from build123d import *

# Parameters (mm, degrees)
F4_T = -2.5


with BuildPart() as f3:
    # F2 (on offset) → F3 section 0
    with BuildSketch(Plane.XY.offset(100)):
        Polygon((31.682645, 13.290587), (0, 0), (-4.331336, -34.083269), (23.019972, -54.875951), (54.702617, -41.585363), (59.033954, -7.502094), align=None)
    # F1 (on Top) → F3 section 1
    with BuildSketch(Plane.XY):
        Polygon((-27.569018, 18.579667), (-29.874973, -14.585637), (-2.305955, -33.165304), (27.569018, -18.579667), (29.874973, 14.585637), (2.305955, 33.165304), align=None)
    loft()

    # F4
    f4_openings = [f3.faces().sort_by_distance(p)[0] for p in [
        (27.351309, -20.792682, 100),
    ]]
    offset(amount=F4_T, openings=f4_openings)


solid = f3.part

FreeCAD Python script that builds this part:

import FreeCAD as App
import Part
import Sketcher
Q = App.Units.Quantity


def faces_at(feature, points):
    """Names of the faces that lie closest to the given points."""
    faces = feature.Shape.Faces
    near = lambda p: min(range(len(faces)), key=lambda i: faces[i].distToShape(Part.Vertex(*p))[0])
    return sorted({f"Face{near(p) + 1}" for p in points})

doc = App.newDocument("Part")
body = doc.addObject("PartDesign::Body", "Body")

# Sketch on XY plane
sketch1 = body.newObject("Sketcher::SketchObject", "Sketch")
sketch1.AttachmentSupport = (doc.getObject("XY_Plane"), [""])
sketch1.MapMode = "FlatFace"
sketch1.AttachmentOffset = App.Placement(App.Vector(0, 0, 100), App.Rotation())
sketch1.addGeometry(Part.LineSegment(App.Vector(32, 13, 0), App.Vector(0, 0, 0)), False)
sketch1.addGeometry(Part.LineSegment(App.Vector(0, 0, 0), App.Vector(-4, -34, 0)), False)
sketch1.addGeometry(Part.LineSegment(App.Vector(-4, -34, 0), App.Vector(23, -55, 0)), False)
sketch1.addGeometry(Part.LineSegment(App.Vector(23, -55, 0), App.Vector(55, -42, 0)), False)
sketch1.addGeometry(Part.LineSegment(App.Vector(55, -42, 0), App.Vector(59, -8, 0)), False)
sketch1.addGeometry(Part.LineSegment(App.Vector(59, -8, 0), App.Vector(32, 13, 0)), False)
sketch1.addConstraint(Sketcher.Constraint("Coincident", 0, 2, 1, 1))
sketch1.addConstraint(Sketcher.Constraint("Coincident", 1, 2, 2, 1))
sketch1.addConstraint(Sketcher.Constraint("Coincident", 2, 2, 3, 1))
sketch1.addConstraint(Sketcher.Constraint("Coincident", 3, 2, 4, 1))
sketch1.addConstraint(Sketcher.Constraint("Coincident", 4, 2, 5, 1))
sketch1.addConstraint(Sketcher.Constraint("Coincident", 5, 2, 0, 1))
sketch1.addConstraint(Sketcher.Constraint("Coincident", 0, 2, -1, 1))
sketch1.addConstraint(Sketcher.Constraint("Parallel", 0, 3))
sketch1.addConstraint(Sketcher.Constraint("Parallel", 1, 4))
sketch1.addConstraint(Sketcher.Constraint("Parallel", 2, 5))
sketch1.addConstraint(Sketcher.Constraint("Equal", 0, 1))
sketch1.addConstraint(Sketcher.Constraint("Equal", 1, 2))
sketch1.addConstraint(Sketcher.Constraint("Equal", 2, 3))
sketch1.addConstraint(Sketcher.Constraint("Distance", 0, Q("34.357382 mm")))
sketch1.addConstraint(Sketcher.Constraint("DistanceY", 1, 2, -1, 1, Q("34.083269 mm")))
sketch1.addConstraint(Sketcher.Constraint("DistanceX", -1, 1, 2, 2, Q("23.019972 mm")))
sketch1.addConstraint(Sketcher.Constraint("DistanceX", 1, 2, 4, 2, Q("63.36529 mm")))

# Sketch on XY plane
sketch2 = body.newObject("Sketcher::SketchObject", "Sketch001")
sketch2.AttachmentSupport = (doc.getObject("XY_Plane"), [""])
sketch2.MapMode = "FlatFace"
sketch2.addGeometry(Part.LineSegment(App.Vector(-28, 19, 0), App.Vector(-30, -15, 0)), False)
sketch2.addGeometry(Part.LineSegment(App.Vector(-30, -15, 0), App.Vector(-2, -33, 0)), False)
sketch2.addGeometry(Part.LineSegment(App.Vector(-2, -33, 0), App.Vector(28, -19, 0)), False)
sketch2.addGeometry(Part.LineSegment(App.Vector(28, -19, 0), App.Vector(30, 15, 0)), False)
sketch2.addGeometry(Part.LineSegment(App.Vector(30, 15, 0), App.Vector(2, 33, 0)), False)
sketch2.addGeometry(Part.LineSegment(App.Vector(2, 33, 0), App.Vector(-28, 19, 0)), False)
sketch2.addConstraint(Sketcher.Constraint("Coincident", 0, 2, 1, 1))
sketch2.addConstraint(Sketcher.Constraint("Coincident", 1, 2, 2, 1))
sketch2.addConstraint(Sketcher.Constraint("Coincident", 2, 2, 3, 1))
sketch2.addConstraint(Sketcher.Constraint("Coincident", 3, 2, 4, 1))
sketch2.addConstraint(Sketcher.Constraint("Coincident", 4, 2, 5, 1))
sketch2.addConstraint(Sketcher.Constraint("Coincident", 5, 2, 0, 1))
sketch2.addConstraint(Sketcher.Constraint("Symmetric", 0, 2, 3, 2, -1, 1))
sketch2.addConstraint(Sketcher.Constraint("Symmetric", 1, 2, 4, 2, -1, 1))
sketch2.addConstraint(Sketcher.Constraint("Symmetric", 2, 2, 5, 2, -1, 1))
sketch2.addConstraint(Sketcher.Constraint("Equal", 0, 1))
sketch2.addConstraint(Sketcher.Constraint("Equal", 1, 2))
sketch2.addConstraint(Sketcher.Constraint("DistanceX", -1, 1, 2, 2, Q("27.569018 mm")))
sketch2.addConstraint(Sketcher.Constraint("DistanceX", 0, 2, 1, 2, Q("27.569018 mm")))
sketch2.addConstraint(Sketcher.Constraint("DistanceX", 0, 2, 2, 2, Q("57.443991 mm")))
sketch2.addConstraint(Sketcher.Constraint("DistanceY", 2, 2, 0, 2, Q("3.99403 mm")))

additiveloft = body.newObject("PartDesign::AdditiveLoft", "AdditiveLoft")
additiveloft.Profile = sketch1
additiveloft.Sections = [sketch2]
doc.recompute()

thickness = body.newObject("PartDesign::Thickness", "Thickness")
thickness.Base = (additiveloft, faces_at(additiveloft, [(27.351, -20.793, 100)]))
thickness.Value = 2.5
thickness.Reversed = True
thickness.Join = "Arc"

doc.recompute()
